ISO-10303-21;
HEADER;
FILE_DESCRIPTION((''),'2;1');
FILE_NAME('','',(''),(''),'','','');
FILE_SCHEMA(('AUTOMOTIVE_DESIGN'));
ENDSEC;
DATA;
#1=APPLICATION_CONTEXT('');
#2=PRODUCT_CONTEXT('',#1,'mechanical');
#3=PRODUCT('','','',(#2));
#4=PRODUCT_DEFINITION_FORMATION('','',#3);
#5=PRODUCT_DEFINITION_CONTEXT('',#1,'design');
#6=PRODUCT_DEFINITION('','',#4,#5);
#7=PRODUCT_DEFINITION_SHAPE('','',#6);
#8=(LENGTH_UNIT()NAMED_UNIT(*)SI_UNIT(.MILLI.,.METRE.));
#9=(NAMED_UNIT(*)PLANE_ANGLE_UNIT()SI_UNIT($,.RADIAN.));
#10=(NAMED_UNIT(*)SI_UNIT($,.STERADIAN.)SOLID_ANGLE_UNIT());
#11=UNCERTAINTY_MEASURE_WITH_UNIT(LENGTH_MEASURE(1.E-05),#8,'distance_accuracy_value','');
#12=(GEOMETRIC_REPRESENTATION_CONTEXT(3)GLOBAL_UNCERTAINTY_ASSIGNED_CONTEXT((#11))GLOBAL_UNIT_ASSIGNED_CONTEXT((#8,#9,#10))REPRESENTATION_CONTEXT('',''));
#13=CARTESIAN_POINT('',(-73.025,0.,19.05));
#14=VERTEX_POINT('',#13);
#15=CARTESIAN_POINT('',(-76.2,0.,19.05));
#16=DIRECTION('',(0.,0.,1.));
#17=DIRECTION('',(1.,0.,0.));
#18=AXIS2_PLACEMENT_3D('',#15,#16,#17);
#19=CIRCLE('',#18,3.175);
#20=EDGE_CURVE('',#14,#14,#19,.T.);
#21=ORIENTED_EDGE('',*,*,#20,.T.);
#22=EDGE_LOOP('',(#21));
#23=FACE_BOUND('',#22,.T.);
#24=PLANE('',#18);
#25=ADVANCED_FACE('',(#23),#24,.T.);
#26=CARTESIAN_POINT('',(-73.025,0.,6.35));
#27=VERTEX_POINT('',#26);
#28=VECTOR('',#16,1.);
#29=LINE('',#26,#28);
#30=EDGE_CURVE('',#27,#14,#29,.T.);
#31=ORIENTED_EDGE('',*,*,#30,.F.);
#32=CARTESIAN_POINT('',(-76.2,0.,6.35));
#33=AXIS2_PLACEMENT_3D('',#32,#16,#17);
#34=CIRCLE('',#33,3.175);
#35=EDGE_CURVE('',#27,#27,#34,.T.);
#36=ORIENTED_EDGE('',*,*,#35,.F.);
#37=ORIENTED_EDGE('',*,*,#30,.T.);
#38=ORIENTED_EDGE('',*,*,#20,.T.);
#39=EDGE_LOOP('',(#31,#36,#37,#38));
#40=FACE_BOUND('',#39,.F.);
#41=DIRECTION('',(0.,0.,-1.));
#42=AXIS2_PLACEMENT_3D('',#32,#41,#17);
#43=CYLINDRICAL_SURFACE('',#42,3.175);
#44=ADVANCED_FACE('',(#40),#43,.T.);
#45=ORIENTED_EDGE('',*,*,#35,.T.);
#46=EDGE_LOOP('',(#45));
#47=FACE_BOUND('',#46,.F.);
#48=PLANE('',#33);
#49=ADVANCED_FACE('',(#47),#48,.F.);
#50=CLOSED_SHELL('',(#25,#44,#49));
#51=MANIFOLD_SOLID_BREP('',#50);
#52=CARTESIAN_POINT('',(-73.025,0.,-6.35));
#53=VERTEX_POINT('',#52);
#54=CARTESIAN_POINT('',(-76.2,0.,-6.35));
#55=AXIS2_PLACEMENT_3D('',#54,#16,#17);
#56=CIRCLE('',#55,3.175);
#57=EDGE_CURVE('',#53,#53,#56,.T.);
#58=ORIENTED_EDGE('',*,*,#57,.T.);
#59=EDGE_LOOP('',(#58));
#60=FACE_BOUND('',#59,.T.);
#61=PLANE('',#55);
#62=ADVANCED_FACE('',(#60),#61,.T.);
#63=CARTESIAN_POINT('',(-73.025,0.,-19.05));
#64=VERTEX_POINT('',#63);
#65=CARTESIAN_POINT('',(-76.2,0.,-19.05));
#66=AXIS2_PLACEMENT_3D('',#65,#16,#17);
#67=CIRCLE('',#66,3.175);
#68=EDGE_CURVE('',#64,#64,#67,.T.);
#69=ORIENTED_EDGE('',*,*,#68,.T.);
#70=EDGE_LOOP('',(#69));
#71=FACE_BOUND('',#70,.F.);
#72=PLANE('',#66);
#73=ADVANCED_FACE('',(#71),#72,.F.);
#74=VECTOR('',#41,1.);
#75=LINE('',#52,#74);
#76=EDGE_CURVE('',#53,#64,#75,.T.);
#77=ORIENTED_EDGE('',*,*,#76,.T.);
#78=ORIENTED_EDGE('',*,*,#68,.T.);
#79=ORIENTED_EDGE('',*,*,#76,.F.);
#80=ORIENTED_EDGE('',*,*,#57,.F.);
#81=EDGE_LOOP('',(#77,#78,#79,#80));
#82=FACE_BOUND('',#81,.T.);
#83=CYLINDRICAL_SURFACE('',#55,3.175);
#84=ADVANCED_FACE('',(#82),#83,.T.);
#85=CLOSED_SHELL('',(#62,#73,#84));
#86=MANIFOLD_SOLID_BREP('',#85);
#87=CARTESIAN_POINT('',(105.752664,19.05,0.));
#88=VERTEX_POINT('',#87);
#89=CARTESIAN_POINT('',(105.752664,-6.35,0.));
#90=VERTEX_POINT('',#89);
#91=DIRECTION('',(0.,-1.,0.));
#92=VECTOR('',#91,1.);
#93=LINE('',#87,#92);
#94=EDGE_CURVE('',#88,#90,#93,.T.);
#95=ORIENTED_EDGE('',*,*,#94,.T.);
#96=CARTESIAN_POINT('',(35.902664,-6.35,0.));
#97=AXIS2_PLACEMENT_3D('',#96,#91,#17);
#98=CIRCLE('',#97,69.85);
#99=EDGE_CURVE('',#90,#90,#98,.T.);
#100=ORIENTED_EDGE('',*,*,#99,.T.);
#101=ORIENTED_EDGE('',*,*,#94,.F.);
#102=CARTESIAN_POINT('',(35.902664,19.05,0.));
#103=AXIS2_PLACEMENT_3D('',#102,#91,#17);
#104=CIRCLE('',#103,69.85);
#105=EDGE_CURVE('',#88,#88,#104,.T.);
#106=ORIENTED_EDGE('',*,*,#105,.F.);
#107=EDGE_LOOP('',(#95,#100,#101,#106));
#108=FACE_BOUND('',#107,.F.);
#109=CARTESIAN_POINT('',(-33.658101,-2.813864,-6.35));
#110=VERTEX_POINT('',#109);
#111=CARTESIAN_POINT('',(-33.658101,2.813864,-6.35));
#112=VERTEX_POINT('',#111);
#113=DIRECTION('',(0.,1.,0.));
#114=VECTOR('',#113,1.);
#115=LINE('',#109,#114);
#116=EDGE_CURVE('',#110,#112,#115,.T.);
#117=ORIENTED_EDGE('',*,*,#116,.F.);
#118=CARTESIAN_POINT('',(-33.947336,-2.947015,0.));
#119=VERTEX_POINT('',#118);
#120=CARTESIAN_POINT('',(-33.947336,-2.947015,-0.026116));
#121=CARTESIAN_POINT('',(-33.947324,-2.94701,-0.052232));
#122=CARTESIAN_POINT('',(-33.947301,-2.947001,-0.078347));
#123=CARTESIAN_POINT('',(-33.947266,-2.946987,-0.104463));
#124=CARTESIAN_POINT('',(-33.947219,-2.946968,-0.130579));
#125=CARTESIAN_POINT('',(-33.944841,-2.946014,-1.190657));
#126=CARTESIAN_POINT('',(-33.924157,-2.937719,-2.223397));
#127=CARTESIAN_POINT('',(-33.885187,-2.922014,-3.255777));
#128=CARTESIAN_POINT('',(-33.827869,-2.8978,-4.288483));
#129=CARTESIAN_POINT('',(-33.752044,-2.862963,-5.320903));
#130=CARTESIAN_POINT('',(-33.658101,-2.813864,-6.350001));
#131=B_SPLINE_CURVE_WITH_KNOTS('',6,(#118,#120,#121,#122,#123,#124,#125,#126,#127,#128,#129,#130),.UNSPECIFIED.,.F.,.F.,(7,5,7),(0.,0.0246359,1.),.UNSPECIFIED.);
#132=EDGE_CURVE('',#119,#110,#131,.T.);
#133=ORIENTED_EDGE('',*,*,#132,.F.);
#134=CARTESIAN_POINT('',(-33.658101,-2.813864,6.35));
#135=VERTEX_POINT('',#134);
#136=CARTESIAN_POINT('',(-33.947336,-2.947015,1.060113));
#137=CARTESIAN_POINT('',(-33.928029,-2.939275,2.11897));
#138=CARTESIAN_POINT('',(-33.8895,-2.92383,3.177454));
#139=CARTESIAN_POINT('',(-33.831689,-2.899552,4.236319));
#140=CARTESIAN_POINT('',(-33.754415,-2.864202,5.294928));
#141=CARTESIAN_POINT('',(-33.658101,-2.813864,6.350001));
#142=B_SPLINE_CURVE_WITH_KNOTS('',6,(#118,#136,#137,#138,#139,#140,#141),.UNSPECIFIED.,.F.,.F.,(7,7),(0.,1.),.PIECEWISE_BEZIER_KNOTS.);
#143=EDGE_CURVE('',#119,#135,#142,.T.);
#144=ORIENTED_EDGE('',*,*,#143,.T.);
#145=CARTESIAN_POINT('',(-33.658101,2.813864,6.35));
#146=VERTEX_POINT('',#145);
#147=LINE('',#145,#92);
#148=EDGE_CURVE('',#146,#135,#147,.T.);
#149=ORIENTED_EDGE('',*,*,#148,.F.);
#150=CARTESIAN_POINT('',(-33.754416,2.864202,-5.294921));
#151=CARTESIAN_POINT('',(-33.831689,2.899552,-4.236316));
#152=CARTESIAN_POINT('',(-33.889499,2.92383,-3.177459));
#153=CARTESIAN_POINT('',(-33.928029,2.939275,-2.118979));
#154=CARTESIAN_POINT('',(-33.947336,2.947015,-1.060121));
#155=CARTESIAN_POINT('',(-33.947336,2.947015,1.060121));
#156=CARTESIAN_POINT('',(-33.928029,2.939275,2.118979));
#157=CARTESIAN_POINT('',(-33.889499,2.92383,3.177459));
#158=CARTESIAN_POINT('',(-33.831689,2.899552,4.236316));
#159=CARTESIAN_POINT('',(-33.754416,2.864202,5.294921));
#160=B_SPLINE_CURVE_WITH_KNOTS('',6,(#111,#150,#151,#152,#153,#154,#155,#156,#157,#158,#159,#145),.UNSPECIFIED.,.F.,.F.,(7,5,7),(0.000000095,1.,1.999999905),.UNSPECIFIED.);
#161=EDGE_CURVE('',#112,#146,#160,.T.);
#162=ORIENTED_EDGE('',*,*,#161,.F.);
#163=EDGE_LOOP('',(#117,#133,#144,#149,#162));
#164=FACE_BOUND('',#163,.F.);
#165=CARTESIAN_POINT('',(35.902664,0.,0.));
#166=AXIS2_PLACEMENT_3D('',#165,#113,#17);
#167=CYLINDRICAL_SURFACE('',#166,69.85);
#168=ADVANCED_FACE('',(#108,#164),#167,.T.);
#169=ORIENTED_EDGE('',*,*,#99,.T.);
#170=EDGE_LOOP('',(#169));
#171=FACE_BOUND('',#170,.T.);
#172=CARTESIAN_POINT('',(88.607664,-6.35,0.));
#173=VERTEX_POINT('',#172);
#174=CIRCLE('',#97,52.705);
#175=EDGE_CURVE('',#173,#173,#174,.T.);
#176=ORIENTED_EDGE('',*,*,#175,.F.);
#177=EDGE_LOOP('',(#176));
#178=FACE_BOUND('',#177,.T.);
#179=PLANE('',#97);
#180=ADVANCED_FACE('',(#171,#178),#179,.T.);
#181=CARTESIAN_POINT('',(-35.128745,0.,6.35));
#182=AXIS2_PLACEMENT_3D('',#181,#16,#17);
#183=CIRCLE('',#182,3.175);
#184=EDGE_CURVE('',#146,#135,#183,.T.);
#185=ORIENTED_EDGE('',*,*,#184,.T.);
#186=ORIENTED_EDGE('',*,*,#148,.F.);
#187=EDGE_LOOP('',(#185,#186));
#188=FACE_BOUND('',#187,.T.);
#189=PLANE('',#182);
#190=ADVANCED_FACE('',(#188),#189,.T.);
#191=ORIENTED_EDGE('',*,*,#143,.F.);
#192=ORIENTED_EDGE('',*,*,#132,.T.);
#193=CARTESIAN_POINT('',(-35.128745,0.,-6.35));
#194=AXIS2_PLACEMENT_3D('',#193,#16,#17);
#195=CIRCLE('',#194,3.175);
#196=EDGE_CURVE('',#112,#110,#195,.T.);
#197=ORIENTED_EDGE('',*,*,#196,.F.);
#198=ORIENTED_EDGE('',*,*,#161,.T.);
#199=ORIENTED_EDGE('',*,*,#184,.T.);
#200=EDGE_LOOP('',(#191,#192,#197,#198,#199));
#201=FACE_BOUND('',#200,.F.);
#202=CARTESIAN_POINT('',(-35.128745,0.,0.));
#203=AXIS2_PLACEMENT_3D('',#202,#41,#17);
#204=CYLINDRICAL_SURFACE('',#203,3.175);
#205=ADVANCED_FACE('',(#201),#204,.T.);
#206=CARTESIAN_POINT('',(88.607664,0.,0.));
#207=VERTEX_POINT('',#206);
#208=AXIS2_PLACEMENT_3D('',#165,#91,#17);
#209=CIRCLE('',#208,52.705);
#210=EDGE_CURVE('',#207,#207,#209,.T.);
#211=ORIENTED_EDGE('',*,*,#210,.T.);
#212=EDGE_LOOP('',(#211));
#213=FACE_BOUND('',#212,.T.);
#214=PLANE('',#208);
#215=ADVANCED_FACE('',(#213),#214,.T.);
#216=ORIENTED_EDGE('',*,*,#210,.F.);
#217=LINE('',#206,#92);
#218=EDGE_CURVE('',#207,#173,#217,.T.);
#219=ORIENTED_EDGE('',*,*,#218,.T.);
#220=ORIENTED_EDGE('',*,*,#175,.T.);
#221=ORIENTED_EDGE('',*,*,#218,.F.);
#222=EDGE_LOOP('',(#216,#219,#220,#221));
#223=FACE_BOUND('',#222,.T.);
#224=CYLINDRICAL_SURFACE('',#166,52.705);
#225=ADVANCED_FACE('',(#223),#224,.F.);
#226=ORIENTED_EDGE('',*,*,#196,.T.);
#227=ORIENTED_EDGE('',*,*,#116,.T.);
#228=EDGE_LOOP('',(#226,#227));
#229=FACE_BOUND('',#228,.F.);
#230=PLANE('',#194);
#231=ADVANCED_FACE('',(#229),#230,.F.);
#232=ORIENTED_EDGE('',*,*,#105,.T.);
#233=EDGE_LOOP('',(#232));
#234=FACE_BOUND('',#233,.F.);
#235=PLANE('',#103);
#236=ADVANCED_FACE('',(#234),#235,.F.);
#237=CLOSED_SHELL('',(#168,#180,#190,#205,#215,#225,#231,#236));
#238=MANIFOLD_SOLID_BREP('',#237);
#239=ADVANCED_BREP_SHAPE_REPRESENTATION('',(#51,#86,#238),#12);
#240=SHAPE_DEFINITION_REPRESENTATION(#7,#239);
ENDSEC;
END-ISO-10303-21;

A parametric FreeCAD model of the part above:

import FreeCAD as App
import Part
import Sketcher
Q = App.Units.Quantity

doc = App.newDocument("Part")
body = doc.addObject("PartDesign::Body", "Body")

# Sketch on XY plane
sketch1 = body.newObject("Sketcher::SketchObject", "Sketch")
sketch1.AttachmentSupport = (doc.getObject("XY_Plane"), [""])
sketch1.MapMode = "FlatFace"
sketch1.AttachmentOffset = App.Placement(App.Vector(0, 0, 0.25 * 25.4), App.Rotation())
sketch1.addGeometry(Part.Circle(App.Vector(-76.2, 0, 0), App.Vector(0, 0, 1), 3.175), False)
sketch1.addConstraint(Sketcher.Constraint("PointOnObject", 0, 3, -1))
sketch1.addConstraint(Sketcher.Constraint("Diameter", 0, Q("0.25 in")))
sketch1.addConstraint(Sketcher.Constraint("DistanceX", 0, 3, -1, 1, Q("3 in")))
pad1 = body.newObject("PartDesign::Pad", "Pad")
pad1.Profile = sketch1
pad1.Length = Q("0.5 in")
body2 = doc.addObject("PartDesign::Body", "Body001")

# Sketch on XY plane
sketch2 = body2.newObject("Sketcher::SketchObject", "Sketch001")
sketch2.AttachmentSupport = (doc.getObject("XY_Plane001"), [""])
sketch2.MapMode = "FlatFace"
sketch2.AttachmentOffset = App.Placement(App.Vector(0, 0, -0.25 * 25.4), App.Rotation())
sketch2.addGeometry(Part.Circle(App.Vector(-76.2, 0, 0), App.Vector(0, 0, 1), 3.175), False)
sketch2.addConstraint(Sketcher.Constraint("PointOnObject", 0, 3, -1))
sketch2.addConstraint(Sketcher.Constraint("Diameter", 0, Q("0.25 in")))
sketch2.addConstraint(Sketcher.Constraint("DistanceX", 0, 3, -1, 1, Q("3 in")))
pad2 = body2.newObject("PartDesign::Pad", "Pad001")
pad2.Profile = sketch2
pad2.Length = Q("0.5 in")
pad2.Reversed = True
body3 = doc.addObject("PartDesign::Body", "Body002")

# Sketch on XY plane
sketch3 = body3.newObject("Sketcher::SketchObject", "Sketch002")
sketch3.AttachmentSupport = (doc.getObject("XY_Plane002"), [""])
sketch3.MapMode = "FlatFace"
sketch3.addGeometry(Part.Circle(App.Vector(-35.128745, 0, 0), App.Vector(0, 0, 1), 3.175), False)
sketch3.addConstraint(Sketcher.Constraint("PointOnObject", 0, 3, -1))
sketch3.addConstraint(Sketcher.Constraint("Diameter", 0, Q("0.25 in")))
sketch3.addConstraint(Sketcher.Constraint("DistanceX", 0, 3, -1, 1, Q("35.128745 mm")))
pad3 = body3.newObject("PartDesign::Pad", "Pad002")
pad3.Profile = sketch3
pad3.Type = "TwoLengths"
pad3.Length = Q("0.25 in")
pad3.Length2 = Q("0.25 in")
pad3.Reversed = True

# Sketch on XZ plane
sketch4 = body3.newObject("Sketcher::SketchObject", "Sketch003")
sketch4.AttachmentSupport = (doc.getObject("XZ_Plane002"), [""])
sketch4.MapMode = "FlatFace"
sketch4.addGeometry(Part.Circle(App.Vector(35.902664, 0, 0), App.Vector(0, 0, 1), 69.85), False)
sketch4.addConstraint(Sketcher.Constraint("PointOnObject", 0, 3, -1))
sketch4.addConstraint(Sketcher.Constraint("Diameter", 0, Q("5.5 in")))
sketch4.addConstraint(Sketcher.Constraint("DistanceX", -1, 1, 0, 3, Q("35.902664 mm")))
pad4 = body3.newObject("PartDesign::Pad", "Pad003")
pad4.Profile = sketch4
pad4.Length = Q("0.75 in")
pad4.Reversed = True

# Sketch on XZ plane
sketch5 = body3.newObject("Sketcher::SketchObject", "Sketch004")
sketch5.AttachmentSupport = (doc.getObject("XZ_Plane002"), [""])
sketch5.MapMode = "FlatFace"
sketch5.addGeometry(Part.Circle(App.Vector(35.902664, 0, 0), App.Vector(0, 0, 1), 69.85), False)
sketch5.addGeometry(Part.Circle(App.Vector(35.902664, 0, 0), App.Vector(0, 0, 1), 52.705), False)
sketch5.addConstraint(Sketcher.Constraint("Coincident", 1, 3, 0, 3))
sketch5.addConstraint(Sketcher.Constraint("PointOnObject", 0, 3, -1))
sketch5.addConstraint(Sketcher.Constraint("Diameter", 0, Q("5.5 in")))
sketch5.addConstraint(Sketcher.Constraint("Diameter", 1, Q("4.15 in")))
sketch5.addConstraint(Sketcher.Constraint("DistanceX", -1, 1, 0, 3, Q("35.902664 mm")))
pad5 = body3.newObject("PartDesign::Pad", "Pad004")
pad5.Profile = sketch5
pad5.Length = Q("0.25 in")

doc.recompute()
